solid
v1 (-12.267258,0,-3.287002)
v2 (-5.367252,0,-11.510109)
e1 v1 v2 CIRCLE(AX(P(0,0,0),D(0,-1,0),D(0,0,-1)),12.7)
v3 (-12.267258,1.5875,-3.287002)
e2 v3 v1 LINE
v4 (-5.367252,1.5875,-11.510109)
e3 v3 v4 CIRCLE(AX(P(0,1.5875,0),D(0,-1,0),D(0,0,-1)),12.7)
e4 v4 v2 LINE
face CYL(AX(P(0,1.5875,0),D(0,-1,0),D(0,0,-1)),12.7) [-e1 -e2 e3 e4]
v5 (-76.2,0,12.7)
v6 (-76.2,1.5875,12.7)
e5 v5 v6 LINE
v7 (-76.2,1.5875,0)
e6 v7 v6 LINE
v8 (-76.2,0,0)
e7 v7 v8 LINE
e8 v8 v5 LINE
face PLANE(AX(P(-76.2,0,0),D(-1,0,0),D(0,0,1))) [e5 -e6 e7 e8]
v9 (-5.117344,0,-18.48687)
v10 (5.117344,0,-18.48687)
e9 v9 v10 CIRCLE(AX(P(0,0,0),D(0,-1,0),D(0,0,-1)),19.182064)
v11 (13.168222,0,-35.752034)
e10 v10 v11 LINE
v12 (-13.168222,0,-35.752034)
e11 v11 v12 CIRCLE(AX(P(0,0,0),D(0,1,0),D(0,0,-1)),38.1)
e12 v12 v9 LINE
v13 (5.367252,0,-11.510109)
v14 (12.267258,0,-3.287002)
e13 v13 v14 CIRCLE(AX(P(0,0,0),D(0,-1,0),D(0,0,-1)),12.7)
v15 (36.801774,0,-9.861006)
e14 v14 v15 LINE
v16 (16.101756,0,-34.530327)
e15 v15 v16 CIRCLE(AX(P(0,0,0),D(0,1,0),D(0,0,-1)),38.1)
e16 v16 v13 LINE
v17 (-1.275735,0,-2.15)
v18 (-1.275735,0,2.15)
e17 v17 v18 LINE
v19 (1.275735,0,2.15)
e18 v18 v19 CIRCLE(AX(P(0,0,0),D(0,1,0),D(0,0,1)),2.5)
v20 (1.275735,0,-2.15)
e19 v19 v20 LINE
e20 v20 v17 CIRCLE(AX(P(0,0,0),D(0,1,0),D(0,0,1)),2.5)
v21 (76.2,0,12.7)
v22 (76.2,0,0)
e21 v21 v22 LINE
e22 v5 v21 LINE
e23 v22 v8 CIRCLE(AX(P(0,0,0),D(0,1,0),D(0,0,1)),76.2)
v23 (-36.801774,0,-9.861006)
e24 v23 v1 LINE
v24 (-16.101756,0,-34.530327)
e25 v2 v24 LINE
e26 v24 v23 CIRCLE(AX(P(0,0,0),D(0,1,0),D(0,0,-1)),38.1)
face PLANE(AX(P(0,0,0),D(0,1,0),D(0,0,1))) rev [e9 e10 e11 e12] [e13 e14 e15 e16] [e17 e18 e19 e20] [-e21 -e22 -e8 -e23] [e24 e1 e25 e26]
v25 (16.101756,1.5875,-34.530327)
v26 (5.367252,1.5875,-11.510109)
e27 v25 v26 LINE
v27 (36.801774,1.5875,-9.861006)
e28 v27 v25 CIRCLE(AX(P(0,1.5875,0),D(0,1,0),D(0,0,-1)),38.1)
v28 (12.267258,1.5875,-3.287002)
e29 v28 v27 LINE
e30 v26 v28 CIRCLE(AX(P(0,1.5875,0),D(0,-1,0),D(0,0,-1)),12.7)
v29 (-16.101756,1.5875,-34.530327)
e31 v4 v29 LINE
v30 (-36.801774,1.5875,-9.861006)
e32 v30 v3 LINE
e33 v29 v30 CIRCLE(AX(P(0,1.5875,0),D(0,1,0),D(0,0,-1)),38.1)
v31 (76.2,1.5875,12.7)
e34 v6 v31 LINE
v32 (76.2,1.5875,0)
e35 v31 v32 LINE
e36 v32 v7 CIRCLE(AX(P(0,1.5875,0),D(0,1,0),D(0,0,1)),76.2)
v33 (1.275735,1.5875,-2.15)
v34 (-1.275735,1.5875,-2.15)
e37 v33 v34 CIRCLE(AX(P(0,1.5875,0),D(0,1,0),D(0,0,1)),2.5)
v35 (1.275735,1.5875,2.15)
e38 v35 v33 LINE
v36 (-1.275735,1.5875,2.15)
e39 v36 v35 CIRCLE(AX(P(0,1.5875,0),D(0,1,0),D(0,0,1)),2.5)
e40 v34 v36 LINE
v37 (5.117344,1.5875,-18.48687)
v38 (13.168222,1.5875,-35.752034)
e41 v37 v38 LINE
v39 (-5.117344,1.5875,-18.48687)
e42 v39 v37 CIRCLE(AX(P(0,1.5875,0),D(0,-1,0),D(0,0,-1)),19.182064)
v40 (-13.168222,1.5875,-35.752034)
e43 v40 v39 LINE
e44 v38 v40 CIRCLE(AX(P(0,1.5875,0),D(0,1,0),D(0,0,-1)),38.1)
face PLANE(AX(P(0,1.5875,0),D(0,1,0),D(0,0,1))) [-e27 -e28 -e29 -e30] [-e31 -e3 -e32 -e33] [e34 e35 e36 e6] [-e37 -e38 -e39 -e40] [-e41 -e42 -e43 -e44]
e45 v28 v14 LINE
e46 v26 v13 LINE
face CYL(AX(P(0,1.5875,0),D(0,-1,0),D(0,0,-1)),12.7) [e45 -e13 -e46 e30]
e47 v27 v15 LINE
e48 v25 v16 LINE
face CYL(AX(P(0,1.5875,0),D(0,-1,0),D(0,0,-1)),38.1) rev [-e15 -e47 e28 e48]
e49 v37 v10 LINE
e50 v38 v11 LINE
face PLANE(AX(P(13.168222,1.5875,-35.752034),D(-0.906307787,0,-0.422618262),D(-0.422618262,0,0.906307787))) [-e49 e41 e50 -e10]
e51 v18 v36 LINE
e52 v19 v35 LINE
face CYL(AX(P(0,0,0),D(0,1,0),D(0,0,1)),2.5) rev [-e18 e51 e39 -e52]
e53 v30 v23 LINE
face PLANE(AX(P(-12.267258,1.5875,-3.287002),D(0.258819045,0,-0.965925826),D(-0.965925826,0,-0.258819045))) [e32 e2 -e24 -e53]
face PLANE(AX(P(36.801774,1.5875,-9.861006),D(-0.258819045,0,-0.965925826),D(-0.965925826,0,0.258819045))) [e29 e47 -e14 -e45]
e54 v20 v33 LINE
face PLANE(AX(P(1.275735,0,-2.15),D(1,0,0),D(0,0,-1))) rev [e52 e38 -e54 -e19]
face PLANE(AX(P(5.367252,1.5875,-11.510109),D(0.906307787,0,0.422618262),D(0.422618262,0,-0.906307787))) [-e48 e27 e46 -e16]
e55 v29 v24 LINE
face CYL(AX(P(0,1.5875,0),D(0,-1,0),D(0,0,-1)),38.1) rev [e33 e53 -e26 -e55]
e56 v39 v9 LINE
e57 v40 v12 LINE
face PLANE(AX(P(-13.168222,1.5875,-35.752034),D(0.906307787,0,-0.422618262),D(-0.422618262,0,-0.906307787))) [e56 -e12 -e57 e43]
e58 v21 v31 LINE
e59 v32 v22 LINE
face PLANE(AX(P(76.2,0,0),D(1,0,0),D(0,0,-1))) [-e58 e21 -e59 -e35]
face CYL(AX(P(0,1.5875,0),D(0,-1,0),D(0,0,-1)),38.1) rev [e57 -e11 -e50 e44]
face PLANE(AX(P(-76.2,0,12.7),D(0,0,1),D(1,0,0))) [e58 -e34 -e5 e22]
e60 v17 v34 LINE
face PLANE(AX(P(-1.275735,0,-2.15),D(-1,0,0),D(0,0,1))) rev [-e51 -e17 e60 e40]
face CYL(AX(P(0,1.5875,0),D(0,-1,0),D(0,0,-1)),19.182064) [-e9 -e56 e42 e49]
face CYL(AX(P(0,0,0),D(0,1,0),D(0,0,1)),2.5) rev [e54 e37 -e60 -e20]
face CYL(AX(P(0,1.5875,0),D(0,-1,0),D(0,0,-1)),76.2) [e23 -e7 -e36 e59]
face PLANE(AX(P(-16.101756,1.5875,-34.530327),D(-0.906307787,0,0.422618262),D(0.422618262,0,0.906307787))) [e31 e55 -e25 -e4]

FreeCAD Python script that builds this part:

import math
import FreeCAD as App
import Part
import Sketcher
Q = App.Units.Quantity

doc = App.newDocument("Part")
body = doc.addObject("PartDesign::Body", "Body")

# Sketch on XZ plane
sketch1 = doc.addObject("Sketcher::SketchObject", "Sketch")
body.addObject(sketch1)
sketch1.AttachmentSupport = (doc.XZ_Plane, [""])
sketch1.MapMode = "FlatFace"
sketch1.addGeometry(Part.LineSegment(App.Vector(-76, 0, 0), App.Vector(76, 0, 0)), False)
sketch1.addGeometry(Part.ArcOfCircle(Part.Circle(App.Vector(0, 0, 0), App.Vector(0, 0, 1), 76), math.radians(180), math.radians(360)), False)
sketch1.addGeometry(Part.ArcOfCircle(Part.Circle(App.Vector(0, 0, 0), App.Vector(0, 0, 1), 13), math.radians(-165), math.radians(-115)), False)
sketch1.addGeometry(Part.LineSegment(App.Vector(-12, -3, 0), App.Vector(-37, -10, 0)), False)
sketch1.addGeometry(Part.ArcOfCircle(Part.Circle(App.Vector(0, 0, 0), App.Vector(0, 0, 1), 38), math.radians(-165), math.radians(-115)), False)
sketch1.addGeometry(Part.LineSegment(App.Vector(-16, -35, 0), App.Vector(-5, -12, 0)), False)
sketch1.addGeometry(Part.ArcOfCircle(Part.Circle(App.Vector(0, 0, 0), App.Vector(0, 0, 1), 38), math.radians(-65), math.radians(-15)), False)
sketch1.addGeometry(Part.LineSegment(App.Vector(37, -10, 0), App.Vector(12, -3, 0)), False)
sketch1.addGeometry(Part.ArcOfCircle(Part.Circle(App.Vector(0, 0, 0), App.Vector(0, 0, 1), 13), math.radians(-65), math.radians(-15)), False)
sketch1.addGeometry(Part.LineSegment(App.Vector(5, -12, 0), App.Vector(16, -35, 0)), False)
sketch1.addGeometry(Part.LineSegment(App.Vector(-5, -18, 0), App.Vector(-13, -36, 0)), False)
sketch1.addGeometry(Part.ArcOfCircle(Part.Circle(App.Vector(0, 0, 0), App.Vector(0, 0, 1), 38), math.radians(-110), math.radians(-70)), False)
sketch1.addGeometry(Part.LineSegment(App.Vector(13, -36, 0), App.Vector(5, -18, 0)), False)
sketch1.addGeometry(Part.ArcOfCircle(Part.Circle(App.Vector(0, 0, 0), App.Vector(0, 0, 1), 19), math.radians(-105), math.radians(-75)), False)
sketch1.addConstraint(Sketcher.Constraint("Coincident", 0, 1, 1, 1))
sketch1.addConstraint(Sketcher.Constraint("Coincident", 1, 2, 0, 2))
sketch1.addConstraint(Sketcher.Constraint("Coincident", 2, 1, 3, 1))
sketch1.addConstraint(Sketcher.Constraint("Coincident", 3, 2, 4, 1))
sketch1.addConstraint(Sketcher.Constraint("Coincident", 4, 2, 5, 1))
sketch1.addConstraint(Sketcher.Constraint("Coincident", 5, 2, 2, 2))
sketch1.addConstraint(Sketcher.Constraint("Coincident", 6, 2, 7, 1))
sketch1.addConstraint(Sketcher.Constraint("Coincident", 7, 2, 8, 2))
sketch1.addConstraint(Sketcher.Constraint("Coincident", 8, 1, 9, 1))
sketch1.addConstraint(Sketcher.Constraint("Coincident", 9, 2, 6, 1))
sketch1.addConstraint(Sketcher.Constraint("Coincident", 10, 2, 11, 1))
sketch1.addConstraint(Sketcher.Constraint("Coincident", 11, 2, 12, 1))
sketch1.addConstraint(Sketcher.Constraint("Coincident", 12, 2, 13, 2))
sketch1.addConstraint(Sketcher.Constraint("Coincident", 13, 1, 10, 1))
sketch1.addConstraint(Sketcher.Constraint("Horizontal", 0))
sketch1.addConstraint(Sketcher.Constraint("Coincident", 1, 3, -1, 1))
sketch1.addConstraint(Sketcher.Constraint("Coincident", 2, 3, -1, 1))
sketch1.addConstraint(Sketcher.Constraint("Coincident", 4, 3, -1, 1))
sketch1.addConstraint(Sketcher.Constraint("Coincident", 6, 3, -1, 1))
sketch1.addConstraint(Sketcher.Constraint("Coincident", 8, 3, -1, 1))
sketch1.addConstraint(Sketcher.Constraint("Coincident", 11, 3, -1, 1))
sketch1.addConstraint(Sketcher.Constraint("Coincident", 13, 3, -1, 1))
sketch1.addConstraint(Sketcher.Constraint("Equal", 4, 6))
sketch1.addConstraint(Sketcher.Constraint("Equal", 2, 8))
sketch1.addConstraint(Sketcher.Constraint("Equal", 6, 11))
sketch1.addConstraint(Sketcher.Constraint("PointOnObject", 0, 1, -1))
sketch1.addConstraint(Sketcher.Constraint("Parallel", 5, 10))
sketch1.addConstraint(Sketcher.Constraint("Parallel", 9, 12))
sketch1.addConstraint(Sketcher.Constraint("Horizontal", 3, 2, 6, 2))
sketch1.addConstraint(Sketcher.Constraint("Horizontal", 2, 1, 7, 2))
sketch1.addConstraint(Sketcher.Constraint("Horizontal", 5, 2, 8, 1))
sketch1.addConstraint(Sketcher.Constraint("Horizontal", 4, 2, 9, 2))
sketch1.addConstraint(Sketcher.Constraint("Horizontal", 10, 2, 11, 2))
sketch1.addConstraint(Sketcher.Constraint("Radius", 1, Q("3 in")))
sketch1.addConstraint(Sketcher.Constraint("Radius", 2, Q("0.5 in")))
sketch1.addConstraint(Sketcher.Constraint("Radius", 4, Q("1.5 in")))
sketch1.addConstraint(Sketcher.Constraint("Angle", 3, Q("-165 deg")))
sketch1.addConstraint(Sketcher.Constraint("Angle", 5, Q("65 deg")))
sketch1.addConstraint(Sketcher.Constraint("Distance", 10, Q("0.75 in")))
sketch1.addConstraint(Sketcher.Constraint("Radius", 13, Q("19.182064 mm")))
sketch1.addConstraint(Sketcher.Constraint("DistanceY", 2, 1, -1, 1, Q("3.287002 mm")))
sketch1.addConstraint(Sketcher.Constraint("DistanceX", 5, 2, -1, 1, Q("5.367252 mm")))
pad1 = doc.addObject("PartDesign::Pad", "Pad")
body.addObject(pad1)
pad1.Profile = sketch1
pad1.Length = Q("0.0625 in")
pad1.Reversed = True

# Sketch on XZ plane
sketch2 = doc.addObject("Sketcher::SketchObject", "Sketch001")
body.addObject(sketch2)
sketch2.AttachmentSupport = (doc.XZ_Plane, [""])
sketch2.MapMode = "FlatFace"
sketch2.AttachmentOffset = App.Placement(App.Vector(0, 0, -0.0625 * 25.4), App.Rotation())
sketch2.addGeometry(Part.LineSegment(App.Vector(-76, 0, 0), App.Vector(-76, 13, 0)), False)
sketch2.addGeometry(Part.LineSegment(App.Vector(-76, 13, 0), App.Vector(76, 13, 0)), False)
sketch2.addGeometry(Part.LineSegment(App.Vector(76, 13, 0), App.Vector(76, 0, 0)), False)
sketch2.addGeometry(Part.LineSegment(App.Vector(76, 0, 0), App.Vector(-76, 0, 0)), False)
sketch2.addConstraint(Sketcher.Constraint("Coincident", 0, 2, 1, 1))
sketch2.addConstraint(Sketcher.Constraint("Coincident", 1, 2, 2, 1))
sketch2.addConstraint(Sketcher.Constraint("Coincident", 2, 2, 3, 1))
sketch2.addConstraint(Sketcher.Constraint("Coincident", 3, 2, 0, 1))
sketch2.addConstraint(Sketcher.Constraint("Vertical", 0))
sketch2.addConstraint(Sketcher.Constraint("Horizontal", 1))
sketch2.addConstraint(Sketcher.Constraint("Vertical", 2))
sketch2.addConstraint(Sketcher.Constraint("Horizontal", 3))
sketch2.addConstraint(Sketcher.Constraint("Symmetric", 2, 2, 3, 2, -1, 1))
sketch2.addConstraint(Sketcher.Constraint("DistanceX", 1, 1, 1, 2, Q("6 in")))
sketch2.addConstraint(Sketcher.Constraint("DistanceY", 0, 1, 0, 2, Q("0.5 in")))
pad2 = doc.addObject("PartDesign::Pad", "Pad001")
body.addObject(pad2)
pad2.Profile = sketch2
pad2.Length = Q("0.0625 in")

# Sketch on XZ plane
sketch3 = doc.addObject("Sketcher::SketchObject", "Sketch002")
body.addObject(sketch3)
sketch3.AttachmentSupport = (doc.XZ_Plane, [""])
sketch3.MapMode = "FlatFace"
sketch3.AttachmentOffset = App.Placement(App.Vector(0, 0, -0.0625 * 25.4), App.Rotation())
sketch3.addGeometry(Part.LineSegment(App.Vector(-1.3, -2.1, 0), App.Vector(-1.3, 2.1, 0)), False)
sketch3.addGeometry(Part.ArcOfCircle(Part.Circle(App.Vector(0, 0, 0), App.Vector(0, 0, 1), 2.5), math.radians(59), math.radians(121)), False)
sketch3.addGeometry(Part.LineSegment(App.Vector(1.3, 2.1, 0), App.Vector(1.3, -2.1, 0)), False)
sketch3.addGeometry(Part.ArcOfCircle(Part.Circle(App.Vector(0, 0, 0), App.Vector(0, 0, 1), 2.5), math.radians(-121), math.radians(-59)), False)
sketch3.addConstraint(Sketcher.Constraint("Coincident", 0, 2, 1, 2))
sketch3.addConstraint(Sketcher.Constraint("Coincident", 1, 1, 2, 1))
sketch3.addConstraint(Sketcher.Constraint("Coincident", 2, 2, 3, 2))
sketch3.addConstraint(Sketcher.Constraint("Coincident", 3, 1, 0, 1))
sketch3.addConstraint(Sketcher.Constraint("Vertical", 0))
sketch3.addConstraint(Sketcher.Constraint("Vertical", 2))
sketch3.addConstraint(Sketcher.Constraint("Coincident", 1, 3, -1, 1))
sketch3.addConstraint(Sketcher.Constraint("Coincident", 3, 3, -1, 1))
sketch3.addConstraint(Sketcher.Constraint("Equal", 1, 3))
sketch3.addConstraint(Sketcher.Constraint("Horizontal", 0, 2, 1, 1))
sketch3.addConstraint(Sketcher.Constraint("Radius", 1, Q("2.5 mm")))
sketch3.addConstraint(Sketcher.Constraint("DistanceY", 0, 1, 0, 2, Q("4.3 mm")))
pocket1 = doc.addObject("PartDesign::Pocket", "Pocket")
body.addObject(pocket1)
pocket1.Profile = sketch3
pocket1.Type = "ThroughAll"
pocket1.Reversed = True

doc.recompute()
